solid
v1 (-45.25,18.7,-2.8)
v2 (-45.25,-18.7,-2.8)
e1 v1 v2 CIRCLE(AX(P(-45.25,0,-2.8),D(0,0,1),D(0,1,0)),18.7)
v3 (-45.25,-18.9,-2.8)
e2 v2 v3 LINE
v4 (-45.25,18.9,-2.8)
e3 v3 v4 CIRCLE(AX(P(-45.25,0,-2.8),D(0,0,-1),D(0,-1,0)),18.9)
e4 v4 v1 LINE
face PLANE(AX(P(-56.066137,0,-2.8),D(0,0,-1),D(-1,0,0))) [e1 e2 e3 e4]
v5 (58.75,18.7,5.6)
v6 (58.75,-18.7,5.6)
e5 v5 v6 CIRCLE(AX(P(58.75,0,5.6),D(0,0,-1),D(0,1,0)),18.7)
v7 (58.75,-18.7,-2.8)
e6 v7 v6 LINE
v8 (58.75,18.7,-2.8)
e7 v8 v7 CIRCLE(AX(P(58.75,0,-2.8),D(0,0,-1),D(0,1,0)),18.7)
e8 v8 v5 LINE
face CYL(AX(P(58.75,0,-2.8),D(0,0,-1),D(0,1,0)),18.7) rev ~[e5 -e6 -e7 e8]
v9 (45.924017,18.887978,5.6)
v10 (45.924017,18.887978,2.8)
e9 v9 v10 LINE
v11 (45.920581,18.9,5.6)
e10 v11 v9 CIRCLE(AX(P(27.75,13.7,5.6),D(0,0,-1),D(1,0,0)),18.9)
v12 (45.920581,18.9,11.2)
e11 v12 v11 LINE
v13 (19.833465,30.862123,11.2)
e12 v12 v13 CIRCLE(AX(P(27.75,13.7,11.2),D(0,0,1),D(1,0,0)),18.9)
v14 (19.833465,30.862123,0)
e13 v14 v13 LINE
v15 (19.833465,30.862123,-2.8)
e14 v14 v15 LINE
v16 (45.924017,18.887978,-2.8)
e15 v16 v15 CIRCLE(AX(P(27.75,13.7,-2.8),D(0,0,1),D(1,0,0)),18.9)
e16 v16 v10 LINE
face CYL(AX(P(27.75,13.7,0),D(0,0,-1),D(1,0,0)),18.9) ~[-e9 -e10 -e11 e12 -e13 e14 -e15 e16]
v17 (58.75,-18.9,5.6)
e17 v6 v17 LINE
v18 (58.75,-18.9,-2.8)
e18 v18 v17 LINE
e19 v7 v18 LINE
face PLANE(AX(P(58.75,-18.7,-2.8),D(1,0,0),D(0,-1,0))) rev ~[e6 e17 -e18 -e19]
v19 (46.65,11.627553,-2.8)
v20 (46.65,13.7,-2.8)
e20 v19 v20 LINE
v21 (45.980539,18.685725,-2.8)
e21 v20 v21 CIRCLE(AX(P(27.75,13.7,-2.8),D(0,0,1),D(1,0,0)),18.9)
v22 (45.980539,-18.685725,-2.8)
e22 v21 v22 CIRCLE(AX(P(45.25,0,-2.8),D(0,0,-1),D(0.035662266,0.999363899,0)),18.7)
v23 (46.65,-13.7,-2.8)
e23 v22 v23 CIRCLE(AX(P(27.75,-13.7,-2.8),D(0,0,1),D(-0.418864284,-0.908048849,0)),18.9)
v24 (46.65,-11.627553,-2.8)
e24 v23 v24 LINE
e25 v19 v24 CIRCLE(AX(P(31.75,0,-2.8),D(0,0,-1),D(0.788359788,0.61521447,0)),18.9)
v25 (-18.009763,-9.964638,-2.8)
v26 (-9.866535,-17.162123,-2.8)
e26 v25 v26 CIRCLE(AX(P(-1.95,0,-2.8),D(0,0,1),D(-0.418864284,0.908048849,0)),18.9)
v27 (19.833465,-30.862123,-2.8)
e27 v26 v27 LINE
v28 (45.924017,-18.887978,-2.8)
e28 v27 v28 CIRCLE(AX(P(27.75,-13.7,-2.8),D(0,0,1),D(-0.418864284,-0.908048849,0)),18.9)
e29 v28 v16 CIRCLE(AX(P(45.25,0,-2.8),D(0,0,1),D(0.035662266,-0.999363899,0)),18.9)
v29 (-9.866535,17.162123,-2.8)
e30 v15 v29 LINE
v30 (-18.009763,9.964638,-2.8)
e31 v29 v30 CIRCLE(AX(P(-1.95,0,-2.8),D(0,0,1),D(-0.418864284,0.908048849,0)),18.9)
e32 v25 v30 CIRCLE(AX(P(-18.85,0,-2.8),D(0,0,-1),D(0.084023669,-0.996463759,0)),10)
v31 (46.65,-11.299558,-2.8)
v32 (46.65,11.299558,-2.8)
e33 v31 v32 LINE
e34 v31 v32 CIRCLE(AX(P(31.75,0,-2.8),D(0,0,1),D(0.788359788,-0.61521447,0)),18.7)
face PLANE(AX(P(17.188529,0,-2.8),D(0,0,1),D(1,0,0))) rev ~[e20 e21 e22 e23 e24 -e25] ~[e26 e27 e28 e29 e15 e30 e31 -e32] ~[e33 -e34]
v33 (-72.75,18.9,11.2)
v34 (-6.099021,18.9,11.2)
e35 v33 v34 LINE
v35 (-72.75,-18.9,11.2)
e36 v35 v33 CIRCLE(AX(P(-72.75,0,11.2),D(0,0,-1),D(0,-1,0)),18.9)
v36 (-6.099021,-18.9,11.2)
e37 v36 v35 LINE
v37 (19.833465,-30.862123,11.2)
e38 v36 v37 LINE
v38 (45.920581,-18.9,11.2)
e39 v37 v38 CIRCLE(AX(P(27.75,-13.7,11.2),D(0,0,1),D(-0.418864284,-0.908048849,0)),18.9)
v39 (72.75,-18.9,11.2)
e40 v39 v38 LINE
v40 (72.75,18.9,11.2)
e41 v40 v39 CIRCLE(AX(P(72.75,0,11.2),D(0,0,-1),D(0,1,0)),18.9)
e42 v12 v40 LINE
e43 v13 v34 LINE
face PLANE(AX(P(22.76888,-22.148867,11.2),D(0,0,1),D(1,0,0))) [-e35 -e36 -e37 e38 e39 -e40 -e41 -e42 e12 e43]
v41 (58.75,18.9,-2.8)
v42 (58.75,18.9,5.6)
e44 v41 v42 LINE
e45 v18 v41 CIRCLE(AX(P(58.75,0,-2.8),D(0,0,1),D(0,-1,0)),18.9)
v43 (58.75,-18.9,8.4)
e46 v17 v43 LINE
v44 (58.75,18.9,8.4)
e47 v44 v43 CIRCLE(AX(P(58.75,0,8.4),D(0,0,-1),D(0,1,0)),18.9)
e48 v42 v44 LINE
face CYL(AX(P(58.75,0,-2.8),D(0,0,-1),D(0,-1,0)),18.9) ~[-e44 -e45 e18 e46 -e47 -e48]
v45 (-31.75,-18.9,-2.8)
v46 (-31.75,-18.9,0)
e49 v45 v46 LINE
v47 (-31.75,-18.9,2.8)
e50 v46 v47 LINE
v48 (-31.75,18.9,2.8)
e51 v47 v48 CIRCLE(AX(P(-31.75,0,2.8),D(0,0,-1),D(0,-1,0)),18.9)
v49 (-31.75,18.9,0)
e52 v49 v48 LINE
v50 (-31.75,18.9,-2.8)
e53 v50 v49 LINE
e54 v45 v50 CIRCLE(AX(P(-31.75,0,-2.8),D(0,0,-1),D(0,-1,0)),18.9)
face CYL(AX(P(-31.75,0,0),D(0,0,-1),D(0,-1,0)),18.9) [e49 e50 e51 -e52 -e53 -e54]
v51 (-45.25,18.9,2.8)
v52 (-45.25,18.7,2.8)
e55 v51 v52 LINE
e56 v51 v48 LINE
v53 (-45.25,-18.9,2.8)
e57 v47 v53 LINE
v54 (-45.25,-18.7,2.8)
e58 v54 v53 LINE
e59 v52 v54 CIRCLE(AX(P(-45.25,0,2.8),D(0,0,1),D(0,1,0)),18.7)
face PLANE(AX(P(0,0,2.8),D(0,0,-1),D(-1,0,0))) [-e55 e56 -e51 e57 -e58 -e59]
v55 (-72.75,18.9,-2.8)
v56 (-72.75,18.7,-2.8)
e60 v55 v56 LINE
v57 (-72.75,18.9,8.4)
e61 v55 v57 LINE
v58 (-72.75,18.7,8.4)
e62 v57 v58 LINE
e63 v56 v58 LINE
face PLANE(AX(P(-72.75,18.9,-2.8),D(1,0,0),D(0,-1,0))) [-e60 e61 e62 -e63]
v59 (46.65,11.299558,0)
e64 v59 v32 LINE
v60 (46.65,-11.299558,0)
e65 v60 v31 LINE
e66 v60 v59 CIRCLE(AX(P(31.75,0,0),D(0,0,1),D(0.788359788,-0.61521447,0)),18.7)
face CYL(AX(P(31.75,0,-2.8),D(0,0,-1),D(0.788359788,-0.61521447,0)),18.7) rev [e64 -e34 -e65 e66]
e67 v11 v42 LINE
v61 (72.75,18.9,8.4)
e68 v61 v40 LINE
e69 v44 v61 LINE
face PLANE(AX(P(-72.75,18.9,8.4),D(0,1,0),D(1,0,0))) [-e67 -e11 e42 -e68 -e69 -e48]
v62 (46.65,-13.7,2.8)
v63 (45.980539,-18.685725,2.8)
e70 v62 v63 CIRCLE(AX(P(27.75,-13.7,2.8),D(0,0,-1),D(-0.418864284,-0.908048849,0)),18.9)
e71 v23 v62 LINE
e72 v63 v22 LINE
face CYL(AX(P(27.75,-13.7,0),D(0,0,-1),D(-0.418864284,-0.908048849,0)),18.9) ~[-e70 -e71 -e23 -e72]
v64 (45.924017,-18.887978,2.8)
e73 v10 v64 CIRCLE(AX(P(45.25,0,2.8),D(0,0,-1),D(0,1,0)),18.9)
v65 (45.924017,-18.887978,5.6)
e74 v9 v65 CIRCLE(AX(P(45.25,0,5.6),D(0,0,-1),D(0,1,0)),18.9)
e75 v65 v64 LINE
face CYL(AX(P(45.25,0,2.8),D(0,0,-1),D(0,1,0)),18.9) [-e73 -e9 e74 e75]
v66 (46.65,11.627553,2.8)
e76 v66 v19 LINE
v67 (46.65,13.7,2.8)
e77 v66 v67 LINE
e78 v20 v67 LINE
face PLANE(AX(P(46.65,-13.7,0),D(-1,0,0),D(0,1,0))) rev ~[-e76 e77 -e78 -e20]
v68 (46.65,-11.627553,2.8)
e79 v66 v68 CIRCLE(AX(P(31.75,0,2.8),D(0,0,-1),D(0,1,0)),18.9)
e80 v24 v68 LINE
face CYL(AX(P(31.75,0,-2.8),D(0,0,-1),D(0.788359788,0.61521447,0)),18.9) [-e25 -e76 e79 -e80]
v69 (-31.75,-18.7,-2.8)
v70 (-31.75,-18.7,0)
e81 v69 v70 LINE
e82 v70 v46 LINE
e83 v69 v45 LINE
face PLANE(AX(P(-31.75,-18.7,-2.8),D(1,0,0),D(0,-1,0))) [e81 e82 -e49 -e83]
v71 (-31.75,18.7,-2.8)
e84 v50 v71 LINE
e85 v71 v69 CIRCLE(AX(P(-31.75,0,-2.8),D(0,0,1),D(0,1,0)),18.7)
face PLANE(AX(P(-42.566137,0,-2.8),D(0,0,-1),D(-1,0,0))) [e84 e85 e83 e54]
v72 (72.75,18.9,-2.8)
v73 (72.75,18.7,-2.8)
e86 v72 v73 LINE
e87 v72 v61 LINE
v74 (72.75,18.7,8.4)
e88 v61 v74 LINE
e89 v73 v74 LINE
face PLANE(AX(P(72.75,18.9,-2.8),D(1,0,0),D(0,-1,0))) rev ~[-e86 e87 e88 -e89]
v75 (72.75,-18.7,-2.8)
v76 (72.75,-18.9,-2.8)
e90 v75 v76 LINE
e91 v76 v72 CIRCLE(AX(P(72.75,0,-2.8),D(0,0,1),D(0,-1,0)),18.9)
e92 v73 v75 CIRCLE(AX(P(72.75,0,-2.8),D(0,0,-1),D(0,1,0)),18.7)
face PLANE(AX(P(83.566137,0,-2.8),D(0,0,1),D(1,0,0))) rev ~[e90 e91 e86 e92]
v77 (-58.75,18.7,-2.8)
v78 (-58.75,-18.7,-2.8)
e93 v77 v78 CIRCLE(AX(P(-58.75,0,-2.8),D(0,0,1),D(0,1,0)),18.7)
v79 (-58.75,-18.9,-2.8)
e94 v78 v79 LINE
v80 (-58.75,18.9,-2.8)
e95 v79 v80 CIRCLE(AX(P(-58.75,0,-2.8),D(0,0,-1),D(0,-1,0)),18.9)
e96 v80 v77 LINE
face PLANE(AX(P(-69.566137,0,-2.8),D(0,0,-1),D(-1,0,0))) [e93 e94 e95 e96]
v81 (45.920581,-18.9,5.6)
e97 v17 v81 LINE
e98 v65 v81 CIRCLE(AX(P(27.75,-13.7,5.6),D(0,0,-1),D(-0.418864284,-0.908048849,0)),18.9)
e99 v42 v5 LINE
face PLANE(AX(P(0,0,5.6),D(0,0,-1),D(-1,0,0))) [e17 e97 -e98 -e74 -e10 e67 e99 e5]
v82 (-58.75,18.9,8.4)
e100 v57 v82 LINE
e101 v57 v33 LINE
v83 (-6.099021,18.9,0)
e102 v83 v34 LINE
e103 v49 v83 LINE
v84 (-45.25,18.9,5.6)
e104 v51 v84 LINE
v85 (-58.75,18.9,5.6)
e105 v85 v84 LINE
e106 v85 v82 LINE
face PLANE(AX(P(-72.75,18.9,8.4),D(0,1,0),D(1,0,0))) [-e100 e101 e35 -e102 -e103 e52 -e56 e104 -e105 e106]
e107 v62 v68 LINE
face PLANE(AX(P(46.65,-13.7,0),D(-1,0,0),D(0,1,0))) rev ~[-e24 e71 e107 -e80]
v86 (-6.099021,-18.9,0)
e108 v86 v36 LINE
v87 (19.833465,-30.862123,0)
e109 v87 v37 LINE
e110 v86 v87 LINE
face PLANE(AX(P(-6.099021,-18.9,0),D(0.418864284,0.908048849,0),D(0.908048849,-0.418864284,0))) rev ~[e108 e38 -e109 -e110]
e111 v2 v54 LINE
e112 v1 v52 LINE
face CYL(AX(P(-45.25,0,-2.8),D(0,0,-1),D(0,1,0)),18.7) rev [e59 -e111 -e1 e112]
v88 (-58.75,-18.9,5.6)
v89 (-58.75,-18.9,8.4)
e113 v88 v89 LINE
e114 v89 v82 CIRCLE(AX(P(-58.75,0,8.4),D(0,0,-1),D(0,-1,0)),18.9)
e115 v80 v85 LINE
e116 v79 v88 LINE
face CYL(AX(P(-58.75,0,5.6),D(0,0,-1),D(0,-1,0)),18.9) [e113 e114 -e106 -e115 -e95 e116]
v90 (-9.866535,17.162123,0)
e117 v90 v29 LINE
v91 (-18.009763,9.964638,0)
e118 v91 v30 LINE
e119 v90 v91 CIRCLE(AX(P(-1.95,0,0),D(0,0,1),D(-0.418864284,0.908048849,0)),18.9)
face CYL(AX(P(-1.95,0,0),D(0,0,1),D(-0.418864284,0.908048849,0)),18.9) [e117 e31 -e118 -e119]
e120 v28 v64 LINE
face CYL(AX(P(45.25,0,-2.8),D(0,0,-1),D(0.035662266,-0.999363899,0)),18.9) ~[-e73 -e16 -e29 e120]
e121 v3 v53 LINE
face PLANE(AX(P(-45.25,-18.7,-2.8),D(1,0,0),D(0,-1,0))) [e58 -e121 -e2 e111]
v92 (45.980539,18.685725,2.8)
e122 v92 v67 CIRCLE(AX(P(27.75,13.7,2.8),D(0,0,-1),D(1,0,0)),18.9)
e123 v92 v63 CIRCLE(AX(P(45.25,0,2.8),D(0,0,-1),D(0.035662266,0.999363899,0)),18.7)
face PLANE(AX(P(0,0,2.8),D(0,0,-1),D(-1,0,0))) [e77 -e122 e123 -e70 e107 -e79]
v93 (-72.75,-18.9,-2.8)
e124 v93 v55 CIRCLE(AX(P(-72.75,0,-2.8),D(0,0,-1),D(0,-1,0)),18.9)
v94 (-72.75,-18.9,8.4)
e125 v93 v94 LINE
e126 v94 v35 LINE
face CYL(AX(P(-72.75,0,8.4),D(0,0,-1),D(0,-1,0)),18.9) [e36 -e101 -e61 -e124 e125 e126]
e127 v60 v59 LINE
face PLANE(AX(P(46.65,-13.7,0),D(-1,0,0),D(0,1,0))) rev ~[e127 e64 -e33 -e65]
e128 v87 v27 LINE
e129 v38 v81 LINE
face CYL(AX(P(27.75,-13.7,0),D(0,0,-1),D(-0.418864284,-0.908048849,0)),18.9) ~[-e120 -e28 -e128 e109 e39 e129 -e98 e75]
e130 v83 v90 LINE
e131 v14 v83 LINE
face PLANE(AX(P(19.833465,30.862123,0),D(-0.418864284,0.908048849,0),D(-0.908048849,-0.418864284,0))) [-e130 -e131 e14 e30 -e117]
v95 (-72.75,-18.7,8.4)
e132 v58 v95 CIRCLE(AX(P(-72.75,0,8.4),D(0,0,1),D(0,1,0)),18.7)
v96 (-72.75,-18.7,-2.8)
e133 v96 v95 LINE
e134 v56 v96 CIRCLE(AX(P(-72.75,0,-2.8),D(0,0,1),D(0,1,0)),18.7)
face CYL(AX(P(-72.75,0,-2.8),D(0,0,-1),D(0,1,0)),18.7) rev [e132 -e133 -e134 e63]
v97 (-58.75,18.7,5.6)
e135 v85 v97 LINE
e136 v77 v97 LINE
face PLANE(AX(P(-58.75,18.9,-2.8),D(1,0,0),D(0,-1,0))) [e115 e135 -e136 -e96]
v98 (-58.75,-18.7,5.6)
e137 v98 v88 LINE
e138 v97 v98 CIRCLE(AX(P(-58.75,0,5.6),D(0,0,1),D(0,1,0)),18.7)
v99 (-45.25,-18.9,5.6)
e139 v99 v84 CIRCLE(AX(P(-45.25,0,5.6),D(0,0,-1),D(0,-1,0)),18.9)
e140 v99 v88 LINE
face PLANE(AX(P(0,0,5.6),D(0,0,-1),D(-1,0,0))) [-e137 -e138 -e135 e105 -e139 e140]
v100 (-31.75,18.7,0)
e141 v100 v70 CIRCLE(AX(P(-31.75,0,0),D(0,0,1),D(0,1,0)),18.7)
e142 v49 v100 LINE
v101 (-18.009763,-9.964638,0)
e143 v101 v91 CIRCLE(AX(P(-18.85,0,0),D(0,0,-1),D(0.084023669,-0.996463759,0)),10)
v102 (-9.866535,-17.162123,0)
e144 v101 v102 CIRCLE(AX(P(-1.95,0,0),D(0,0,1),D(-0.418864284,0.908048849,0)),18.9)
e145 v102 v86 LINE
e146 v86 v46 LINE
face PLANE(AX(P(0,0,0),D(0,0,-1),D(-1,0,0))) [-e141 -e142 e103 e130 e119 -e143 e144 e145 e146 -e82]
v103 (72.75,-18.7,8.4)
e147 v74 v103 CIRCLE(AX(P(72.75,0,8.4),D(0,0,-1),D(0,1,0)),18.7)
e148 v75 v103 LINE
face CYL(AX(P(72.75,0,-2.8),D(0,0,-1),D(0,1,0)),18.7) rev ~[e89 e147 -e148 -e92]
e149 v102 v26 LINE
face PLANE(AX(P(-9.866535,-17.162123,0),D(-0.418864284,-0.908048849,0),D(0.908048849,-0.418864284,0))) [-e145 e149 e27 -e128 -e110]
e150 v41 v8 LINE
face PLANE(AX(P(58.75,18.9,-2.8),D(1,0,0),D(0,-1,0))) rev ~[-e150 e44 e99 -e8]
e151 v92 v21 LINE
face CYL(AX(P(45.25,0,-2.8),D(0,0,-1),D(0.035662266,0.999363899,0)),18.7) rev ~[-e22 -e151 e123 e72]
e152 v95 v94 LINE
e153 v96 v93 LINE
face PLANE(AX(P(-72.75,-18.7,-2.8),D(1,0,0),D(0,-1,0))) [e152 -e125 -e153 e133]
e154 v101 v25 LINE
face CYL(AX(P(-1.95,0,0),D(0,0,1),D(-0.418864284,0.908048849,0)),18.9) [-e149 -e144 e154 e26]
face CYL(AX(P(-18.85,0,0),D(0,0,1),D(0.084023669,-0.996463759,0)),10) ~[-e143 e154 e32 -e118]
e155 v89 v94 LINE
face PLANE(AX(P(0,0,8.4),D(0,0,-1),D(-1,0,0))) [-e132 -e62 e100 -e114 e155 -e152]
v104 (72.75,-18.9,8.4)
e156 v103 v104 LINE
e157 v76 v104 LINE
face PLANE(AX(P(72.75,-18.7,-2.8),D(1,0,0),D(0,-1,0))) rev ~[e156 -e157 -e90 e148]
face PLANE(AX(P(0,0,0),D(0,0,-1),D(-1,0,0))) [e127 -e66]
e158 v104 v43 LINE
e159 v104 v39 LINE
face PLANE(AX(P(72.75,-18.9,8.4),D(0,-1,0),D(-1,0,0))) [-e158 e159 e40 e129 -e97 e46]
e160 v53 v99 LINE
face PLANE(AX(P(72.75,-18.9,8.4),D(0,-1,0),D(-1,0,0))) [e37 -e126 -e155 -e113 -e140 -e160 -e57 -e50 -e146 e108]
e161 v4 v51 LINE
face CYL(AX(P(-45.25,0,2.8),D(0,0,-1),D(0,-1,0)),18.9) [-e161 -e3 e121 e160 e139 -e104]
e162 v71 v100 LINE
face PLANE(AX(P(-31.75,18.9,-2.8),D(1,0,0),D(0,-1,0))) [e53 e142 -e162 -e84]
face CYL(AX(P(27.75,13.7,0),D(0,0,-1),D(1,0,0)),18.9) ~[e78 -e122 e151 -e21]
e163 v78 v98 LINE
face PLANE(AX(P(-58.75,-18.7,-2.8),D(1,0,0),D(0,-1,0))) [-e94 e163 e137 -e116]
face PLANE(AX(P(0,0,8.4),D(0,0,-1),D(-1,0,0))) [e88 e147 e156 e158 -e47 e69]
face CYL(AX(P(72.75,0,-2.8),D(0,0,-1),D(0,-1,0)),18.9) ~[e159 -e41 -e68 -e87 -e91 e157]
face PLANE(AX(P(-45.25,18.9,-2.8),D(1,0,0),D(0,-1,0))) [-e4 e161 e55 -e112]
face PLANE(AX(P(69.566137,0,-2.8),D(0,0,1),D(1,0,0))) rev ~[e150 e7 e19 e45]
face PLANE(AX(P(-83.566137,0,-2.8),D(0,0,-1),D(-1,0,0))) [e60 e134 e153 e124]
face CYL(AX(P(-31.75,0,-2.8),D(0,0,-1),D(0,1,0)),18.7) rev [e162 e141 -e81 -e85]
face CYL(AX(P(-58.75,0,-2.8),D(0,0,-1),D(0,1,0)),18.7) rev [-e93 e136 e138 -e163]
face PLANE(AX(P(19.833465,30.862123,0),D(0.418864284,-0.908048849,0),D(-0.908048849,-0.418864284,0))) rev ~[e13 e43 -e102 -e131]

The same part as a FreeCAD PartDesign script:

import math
import FreeCAD as App
import Part
import Sketcher
Q = App.Units.Quantity

doc = App.newDocument("Part")
params = doc.addObject("Spreadsheet::Sheet", "Params")
for row, (alias, value) in enumerate([
    ("sketch1_radius", "18.9 mm"),
    ("sketch1_width", "63.5 mm"),
    ("pad1_length", "2.8 mm"),
    ("sketch2_radius", "18.9 mm"),
    ("sketch2_height", "27.4 mm"),
    ("pad2_length", "2.8 mm"),
    ("sketch3_radius", "18.9 mm"),
    ("sketch3_width", "90.5 mm"),
    ("pad3_length", "2.8 mm"),
    ("sketch4_radius", "18.9 mm"),
    ("sketch4_width", "117.5 mm"),
    ("pad4_length", "2.8 mm"),
    ("sketch5_radius", "18.9 mm"),
    ("sketch5_width", "145.5 mm"),
    ("pad5_length", "2.8 mm"),
    ("sketch6_radius", "18.9 mm"),
    ("pad6_length", "11.2 mm"),
    ("sketch7_radius", "10 mm"),
    ("sketch7_radius2", "18.9 mm"),
    ("pad7_length", "2.8 mm"),
    ("sketch8_radius", "18.7 mm"),
    ("sketch8_radius2", "18.9 mm"),
    ("pad8_length", "11.2 mm"),
    ("sketch9_radius", "18.9 mm"),
    ("sketch9_radius2", "18.7 mm"),
    ("pad9_length", "8.4 mm"),
    ("sketch10_radius", "18.9 mm"),
    ("sketch10_radius2", "18.7 mm"),
    ("pad10_length", "5.6 mm"),
    ("sketch11_radius", "18.7 mm"),
    ("sketch11_radius2", "18.9 mm"),
    ("pad11_length", "2.8 mm"),
], start=1):
    params.set(f"A{row}", alias)
    params.set(f"B{row}", "=" + value)
    params.setAlias(f"B{row}", alias)

body = doc.addObject("PartDesign::Body", "Body")

sketch1 = body.newObject("Sketcher::SketchObject", "Sketch")
sketch1.AttachmentSupport = (doc.getObject("XY_Plane"), [""])
sketch1.MapMode = "FlatFace"
sketch1.addGeometry(Part.LineSegment(App.Vector(31.75, 18.9, 0), App.Vector(-31.75, 18.9, 0)), False)
sketch1.addGeometry(Part.ArcOfCircle(Part.Circle(App.Vector(-31.75, 0, 0), App.Vector(0, 0, 1), 18.9), math.radians(90), math.radians(270)), False)
sketch1.addGeometry(Part.LineSegment(App.Vector(-31.75, -18.9, 0), App.Vector(31.75, -18.9, 0)), False)
sketch1.addGeometry(Part.ArcOfCircle(Part.Circle(App.Vector(31.75, 0, 0), App.Vector(0, 0, 1), 18.9), math.radians(-90), math.radians(90)), False)
sketch1.addConstraint(Sketcher.Constraint("Tangent", 0, 2, 1, 1))
sketch1.addConstraint(Sketcher.Constraint("Tangent", 1, 2, 2, 1))
sketch1.addConstraint(Sketcher.Constraint("Tangent", 2, 2, 3, 1))
sketch1.addConstraint(Sketcher.Constraint("Tangent", 3, 2, 0, 1))
sketch1.addConstraint(Sketcher.Constraint("Horizontal", 0))
sketch1.addConstraint(Sketcher.Constraint("Horizontal", 2))
sketch1.addConstraint(Sketcher.Constraint("Symmetric", 1, 3, 3, 3, -1, 1))
sketch1.addConstraint(Sketcher.Constraint("Radius", 1, Q("18.9 mm")))
sketch1.addConstraint(Sketcher.Constraint("DistanceX", 0, 2, 0, 1, Q("63.5 mm")))
sketch1.setExpression("Constraints[7]", "Params.sketch1_radius")
sketch1.setExpression("Constraints[8]", "Params.sketch1_width")
pad1 = body.newObject("PartDesign::Pad", "Pad")
pad1.Profile = sketch1
pad1.setExpression("Length", "Params.pad1_length")

sketch2 = body.newObject("Sketcher::SketchObject", "Sketch001")
sketch2.AttachmentSupport = (doc.getObject("XY_Plane"), [""])
sketch2.MapMode = "FlatFace"
sketch2.addGeometry(Part.LineSegment(App.Vector(46.65, 13.7, 0), App.Vector(46.65, -13.7, 0)), False)
sketch2.addGeometry(Part.ArcOfCircle(Part.Circle(App.Vector(27.75, -13.7, 0), App.Vector(0, 0, 1), 18.9), math.radians(-114.762906), math.radians(0)), False)
sketch2.addGeometry(Part.LineSegment(App.Vector(19.833465, -30.862123, 0), App.Vector(-9.866535, -17.162123, 0)), False)
sketch2.addGeometry(Part.ArcOfCircle(Part.Circle(App.Vector(-1.95, 0, 0), App.Vector(0, 0, 1), 18.9), math.radians(114.762906), math.radians(245.237094)), False)
sketch2.addGeometry(Part.LineSegment(App.Vector(-9.866535, 17.162123, 0), App.Vector(19.833465, 30.862123, 0)), False)
sketch2.addGeometry(Part.ArcOfCircle(Part.Circle(App.Vector(27.75, 13.7, 0), App.Vector(0, 0, 1), 18.9), math.radians(0), math.radians(114.762906)), False)
sketch2.addConstraint(Sketcher.Constraint("Tangent", 0, 2, 1, 2))
sketch2.addConstraint(Sketcher.Constraint("Tangent", 1, 1, 2, 1))
sketch2.addConstraint(Sketcher.Constraint("Tangent", 2, 2, 3, 2))
sketch2.addConstraint(Sketcher.Constraint("Tangent", 3, 1, 4, 1))
sketch2.addConstraint(Sketcher.Constraint("Tangent", 4, 2, 5, 2))
sketch2.addConstraint(Sketcher.Constraint("Tangent", 5, 1, 0, 1))
sketch2.addConstraint(Sketcher.Constraint("Vertical", 0))
sketch2.addConstraint(Sketcher.Constraint("Equal", 1, 3))
sketch2.addConstraint(Sketcher.Constraint("Equal", 3, 5))
sketch2.addConstraint(Sketcher.Constraint("Symmetric", 2, 2, 3, 1, -1))
sketch2.addConstraint(Sketcher.Constraint("Radius", 1, Q("18.9 mm")))
sketch2.addConstraint(Sketcher.Constraint("DistanceY", 0, 2, 0, 1, Q("27.4 mm")))
sketch2.addConstraint(Sketcher.Constraint("DistanceX", 3, 3, 1, 3, Q("29.7 mm")))
sketch2.addConstraint(Sketcher.Constraint("DistanceX", -1, 1, 1, 3, Q("27.75 mm")))
sketch2.setExpression("Constraints[10]", "Params.sketch2_radius")
sketch2.setExpression("Constraints[11]", "Params.sketch2_height")
pad2 = body.newObject("PartDesign::Pad", "Pad001")
pad2.Profile = sketch2
pad2.setExpression("Length", "Params.pad2_length")
pad2.Reversed = True

sketch3 = body.newObject("Sketcher::SketchObject", "Sketch002")
sketch3.AttachmentSupport = (doc.getObject("XY_Plane"), [""])
sketch3.MapMode = "FlatFace"
sketch3.AttachmentOffset = App.Placement(App.Vector(0, 0, 2.8), App.Rotation())
sketch3.addGeometry(Part.LineSegment(App.Vector(45.25, 18.9, 0), App.Vector(-45.25, 18.9, 0)), False)
sketch3.addGeometry(Part.ArcOfCircle(Part.Circle(App.Vector(-45.25, 0, 0), App.Vector(0, 0, 1), 18.9), math.radians(90), math.radians(270)), False)
sketch3.addGeometry(Part.LineSegment(App.Vector(-45.25, -18.9, 0), App.Vector(45.25, -18.9, 0)), False)
sketch3.addGeometry(Part.ArcOfCircle(Part.Circle(App.Vector(45.25, 0, 0), App.Vector(0, 0, 1), 18.9), math.radians(-90), math.radians(90)), False)
sketch3.addConstraint(Sketcher.Constraint("Tangent", 0, 2, 1, 1))
sketch3.addConstraint(Sketcher.Constraint("Tangent", 1, 2, 2, 1))
sketch3.addConstraint(Sketcher.Constraint("Tangent", 2, 2, 3, 1))
sketch3.addConstraint(Sketcher.Constraint("Tangent", 3, 2, 0, 1))
sketch3.addConstraint(Sketcher.Constraint("Horizontal", 0))
sketch3.addConstraint(Sketcher.Constraint("Horizontal", 2))
sketch3.addConstraint(Sketcher.Constraint("Symmetric", 1, 3, 3, 3, -1, 1))
sketch3.addConstraint(Sketcher.Constraint("Radius", 1, Q("18.9 mm")))
sketch3.addConstraint(Sketcher.Constraint("DistanceX", 0, 2, 0, 1, Q("90.5 mm")))
sketch3.setExpression("Constraints[7]", "Params.sketch3_radius")
sketch3.setExpression("Constraints[8]", "Params.sketch3_width")
pad3 = body.newObject("PartDesign::Pad", "Pad002")
pad3.Profile = sketch3
pad3.setExpression("Length", "Params.pad3_length")

sketch4 = body.newObject("Sketcher::SketchObject", "Sketch003")
sketch4.AttachmentSupport = (doc.getObject("XY_Plane"), [""])
sketch4.MapMode = "FlatFace"
sketch4.AttachmentOffset = App.Placement(App.Vector(0, 0, 5.6), App.Rotation())
sketch4.addGeometry(Part.LineSegment(App.Vector(58.75, 18.9, 0), App.Vector(-58.75, 18.9, 0)), False)
sketch4.addGeometry(Part.ArcOfCircle(Part.Circle(App.Vector(-58.75, 0, 0), App.Vector(0, 0, 1), 18.9), math.radians(90), math.radians(270)), False)
sketch4.addGeometry(Part.LineSegment(App.Vector(-58.75, -18.9, 0), App.Vector(58.75, -18.9, 0)), False)
sketch4.addGeometry(Part.ArcOfCircle(Part.Circle(App.Vector(58.75, 0, 0), App.Vector(0, 0, 1), 18.9), math.radians(-90), math.radians(90)), False)
sketch4.addConstraint(Sketcher.Constraint("Tangent", 0, 2, 1, 1))
sketch4.addConstraint(Sketcher.Constraint("Tangent", 1, 2, 2, 1))
sketch4.addConstraint(Sketcher.Constraint("Tangent", 2, 2, 3, 1))
sketch4.addConstraint(Sketcher.Constraint("Tangent", 3, 2, 0, 1))
sketch4.addConstraint(Sketcher.Constraint("Horizontal", 0))
sketch4.addConstraint(Sketcher.Constraint("Horizontal", 2))
sketch4.addConstraint(Sketcher.Constraint("Symmetric", 1, 3, 3, 3, -1, 1))
sketch4.addConstraint(Sketcher.Constraint("Radius", 1, Q("18.9 mm")))
sketch4.addConstraint(Sketcher.Constraint("DistanceX", 0, 2, 0, 1, Q("117.5 mm")))
sketch4.setExpression("Constraints[7]", "Params.sketch4_radius")
sketch4.setExpression("Constraints[8]", "Params.sketch4_width")
pad4 = body.newObject("PartDesign::Pad", "Pad003")
pad4.Profile = sketch4
pad4.setExpression("Length", "Params.pad4_length")

sketch5 = body.newObject("Sketcher::SketchObject", "Sketch004")
sketch5.AttachmentSupport = (doc.getObject("XY_Plane"), [""])
sketch5.MapMode = "FlatFace"
sketch5.AttachmentOffset = App.Placement(App.Vector(0, 0, 8.4), App.Rotation())
sketch5.addGeometry(Part.LineSegment(App.Vector(72.75, 18.9, 0), App.Vector(-72.75, 18.9, 0)), False)
sketch5.addGeometry(Part.ArcOfCircle(Part.Circle(App.Vector(-72.75, 0, 0), App.Vector(0, 0, 1), 18.9), math.radians(90), math.radians(270)), False)
sketch5.addGeometry(Part.LineSegment(App.Vector(-72.75, -18.9, 0), App.Vector(72.75, -18.9, 0)), False)
sketch5.addGeometry(Part.ArcOfCircle(Part.Circle(App.Vector(72.75, 0, 0), App.Vector(0, 0, 1), 18.9), math.radians(-90), math.radians(90)), False)
sketch5.addConstraint(Sketcher.Constraint("Tangent", 0, 2, 1, 1))
sketch5.addConstraint(Sketcher.Constraint("Tangent", 1, 2, 2, 1))
sketch5.addConstraint(Sketcher.Constraint("Tangent", 2, 2, 3, 1))
sketch5.addConstraint(Sketcher.Constraint("Tangent", 3, 2, 0, 1))
sketch5.addConstraint(Sketcher.Constraint("Horizontal", 0))
sketch5.addConstraint(Sketcher.Constraint("Horizontal", 2))
sketch5.addConstraint(Sketcher.Constraint("Symmetric", 1, 3, 3, 3, -1, 1))
sketch5.addConstraint(Sketcher.Constraint("Radius", 1, Q("18.9 mm")))
sketch5.addConstraint(Sketcher.Constraint("DistanceX", 0, 2, 0, 1, Q("145.5 mm")))
sketch5.setExpression("Constraints[7]", "Params.sketch5_radius")
sketch5.setExpression("Constraints[8]", "Params.sketch5_width")
pad5 = body.newObject("PartDesign::Pad", "Pad004")
pad5.Profile = sketch5
pad5.setExpression("Length", "Params.pad5_length")

sketch6 = body.newObject("Sketcher::SketchObject", "Sketch005")
sketch6.AttachmentSupport = (doc.getObject("XY_Plane"), [""])
sketch6.MapMode = "FlatFace"
sketch6.addGeometry(Part.LineSegment(App.Vector(31.75, -18.9, 0), App.Vector(-6.099021, -18.9, 0)), False)
sketch6.addGeometry(Part.LineSegment(App.Vector(-6.099021, -18.9, 0), App.Vector(19.833465, -30.862123, 0)), False)
sketch6.addGeometry(Part.ArcOfCircle(Part.Circle(App.Vector(27.75, -13.7, 0), App.Vector(0, 0, 1), 18.9), math.radians(-114.762906), math.radians(0)), False)
sketch6.addGeometry(Part.LineSegment(App.Vector(46.65, -13.7, 0), App.Vector(46.65, -11.627553, 0)), False)
sketch6.addGeometry(Part.ArcOfCircle(Part.Circle(App.Vector(31.75, 0, 0), App.Vector(0, 0, 1), 18.9), math.radians(-90), math.radians(-37.967506)), False)
sketch6.addGeometry(Part.LineSegment(App.Vector(46.65, 11.627553, 0), App.Vector(46.65, 13.7, 0)), False)
sketch6.addGeometry(Part.ArcOfCircle(Part.Circle(App.Vector(27.75, 13.7, 0), App.Vector(0, 0, 1), 18.9), math.radians(0), math.radians(114.762906)), False)
sketch6.addGeometry(Part.LineSegment(App.Vector(19.833465, 30.862123, 0), App.Vector(-6.099021, 18.9, 0)), False)
sketch6.addGeometry(Part.LineSegment(App.Vector(-6.099021, 18.9, 0), App.Vector(31.75, 18.9, 0)), False)
sketch6.addGeometry(Part.ArcOfCircle(Part.Circle(App.Vector(31.75, 0, 0), App.Vector(0, 0, 1), 18.9), math.radians(37.967506), math.radians(90)), False)
sketch6.addConstraint(Sketcher.Constraint("Coincident", 0, 2, 1, 1))
sketch6.addConstraint(Sketcher.Constraint("Tangent", 1, 2, 2, 1))
sketch6.addConstraint(Sketcher.Constraint("Tangent", 2, 2, 3, 1))
sketch6.addConstraint(Sketcher.Constraint("Coincident", 3, 2, 4, 2))
sketch6.addConstraint(Sketcher.Constraint("Tangent", 4, 1, 0, 1))
sketch6.addConstraint(Sketcher.Constraint("Tangent", 5, 2, 6, 1))
sketch6.addConstraint(Sketcher.Constraint("Tangent", 6, 2, 7, 1))
sketch6.addConstraint(Sketcher.Constraint("Coincident", 7, 2, 8, 1))
sketch6.addConstraint(Sketcher.Constraint("Tangent", 8, 2, 9, 2))
sketch6.addConstraint(Sketcher.Constraint("Coincident", 9, 1, 5, 1))
sketch6.addConstraint(Sketcher.Constraint("Horizontal", 0))
sketch6.addConstraint(Sketcher.Constraint("Vertical", 3))
sketch6.addConstraint(Sketcher.Constraint("Vertical", 5))
sketch6.addConstraint(Sketcher.Constraint("Horizontal", 8))
sketch6.addConstraint(Sketcher.Constraint("Coincident", 9, 3, 4, 3))
sketch6.addConstraint(Sketcher.Constraint("Equal", 2, 4))
sketch6.addConstraint(Sketcher.Constraint("Equal", 4, 6))
sketch6.addConstraint(Sketcher.Constraint("Equal", 6, 9))
sketch6.addConstraint(Sketcher.Constraint("Symmetric", 2, 3, 6, 3, -1))
sketch6.addConstraint(Sketcher.Constraint("Symmetric", 0, 2, 7, 2, -1))
sketch6.addConstraint(Sketcher.Constraint("Radius", 2, Q("18.9 mm")))
sketch6.addConstraint(Sketcher.Constraint("DistanceX", 2, 3, 4, 3, Q("4 mm")))
sketch6.addConstraint(Sketcher.Constraint("DistanceY", 2, 3, -1, 1, Q("13.7 mm")))
sketch6.addConstraint(Sketcher.Constraint("DistanceX", -1, 1, 2, 3, Q("27.75 mm")))
sketch6.addConstraint(Sketcher.Constraint("DistanceX", 0, 2, 0, 1, Q("37.849021 mm")))
sketch6.setExpression("Constraints[20]", "Params.sketch6_radius")
pad6 = body.newObject("PartDesign::Pad", "Pad005")
pad6.Profile = sketch6
pad6.setExpression("Length", "Params.pad6_length")

sketch7 = body.newObject("Sketcher::SketchObject", "Sketch006")
sketch7.AttachmentSupport = (doc.getObject("XY_Plane"), [""])
sketch7.MapMode = "FlatFace"
sketch7.addGeometry(Part.ArcOfCircle(Part.Circle(App.Vector(-18.85, 0, 0), App.Vector(0, 0, 1), 10), math.radians(85.180116), math.radians(274.819884)), False)
sketch7.addGeometry(Part.ArcOfCircle(Part.Circle(App.Vector(-1.95, 0, 0), App.Vector(0, 0, 1), 18.9), math.radians(148.181546), math.radians(211.818454)), False)
sketch7.addConstraint(Sketcher.Constraint("Coincident", 0, 1, 1, 1))
sketch7.addConstraint(Sketcher.Constraint("Coincident", 1, 2, 0, 2))
sketch7.addConstraint(Sketcher.Constraint("Symmetric", 0, 1, 1, 2, -1))
sketch7.addConstraint(Sketcher.Constraint("Radius", 0, Q("10 mm")))
sketch7.addConstraint(Sketcher.Constraint("Radius", 1, Q("18.9 mm")))
sketch7.addConstraint(Sketcher.Constraint("DistanceX", 0, 3, 1, 3, Q("16.9 mm")))
sketch7.addConstraint(Sketcher.Constraint("DistanceX", 0, 3, -1, 1, Q("18.85 mm")))
sketch7.setExpression("Constraints[3]", "Params.sketch7_radius")
sketch7.setExpression("Constraints[4]", "Params.sketch7_radius2")
pad7 = body.newObject("PartDesign::Pad", "Pad006")
pad7.Profile = sketch7
pad7.setExpression("Length", "Params.pad7_length")
pad7.Reversed = True

sketch8 = body.newObject("Sketcher::SketchObject", "Sketch007")
sketch8.AttachmentSupport = (doc.getObject("XY_Plane"), [""])
sketch8.MapMode = "FlatFace"
sketch8.AttachmentOffset = App.Placement(App.Vector(0, 0, -2.8), App.Rotation())
sketch8.addGeometry(Part.LineSegment(App.Vector(72.75, -18.9, 0), App.Vector(72.75, -18.7, 0)), False)
sketch8.addGeometry(Part.ArcOfCircle(Part.Circle(App.Vector(72.75, 0, 0), App.Vector(0, 0, 1), 18.7), math.radians(-90), math.radians(90)), False)
sketch8.addGeometry(Part.LineSegment(App.Vector(72.75, 18.7, 0), App.Vector(72.75, 18.9, 0)), False)
sketch8.addGeometry(Part.ArcOfCircle(Part.Circle(App.Vector(72.75, 0, 0), App.Vector(0, 0, 1), 18.9), math.radians(-90), math.radians(90)), False)
sketch8.addGeometry(Part.LineSegment(App.Vector(-72.75, -18.7, 0), App.Vector(-72.75, -18.9, 0)), False)
sketch8.addGeometry(Part.ArcOfCircle(Part.Circle(App.Vector(-72.75, 0, 0), App.Vector(0, 0, 1), 18.9), math.radians(90), math.radians(270)), False)
sketch8.addGeometry(Part.LineSegment(App.Vector(-72.75, 18.9, 0), App.Vector(-72.75, 18.7, 0)), False)
sketch8.addGeometry(Part.ArcOfCircle(Part.Circle(App.Vector(-72.75, 0, 0), App.Vector(0, 0, 1), 18.7), math.radians(90), math.radians(270)), False)
sketch8.addConstraint(Sketcher.Constraint("Coincident", 0, 2, 1, 1))
sketch8.addConstraint(Sketcher.Constraint("Coincident", 1, 2, 2, 1))
sketch8.addConstraint(Sketcher.Constraint("Coincident", 2, 2, 3, 2))
sketch8.addConstraint(Sketcher.Constraint("Coincident", 3, 1, 0, 1))
sketch8.addConstraint(Sketcher.Constraint("Coincident", 4, 2, 5, 2))
sketch8.addConstraint(Sketcher.Constraint("Coincident", 5, 1, 6, 1))
sketch8.addConstraint(Sketcher.Constraint("Coincident", 6, 2, 7, 1))
sketch8.addConstraint(Sketcher.Constraint("Coincident", 7, 2, 4, 1))
sketch8.addConstraint(Sketcher.Constraint("Vertical", 0))
sketch8.addConstraint(Sketcher.Constraint("Vertical", 2))
sketch8.addConstraint(Sketcher.Constraint("Vertical", 4))
sketch8.addConstraint(Sketcher.Constraint("Vertical", 6))
sketch8.addConstraint(Sketcher.Constraint("Coincident", 3, 3, 1, 3))
sketch8.addConstraint(Sketcher.Constraint("Coincident", 7, 3, 5, 3))
sketch8.addConstraint(Sketcher.Constraint("Equal", 3, 5))
sketch8.addConstraint(Sketcher.Constraint("Equal", 1, 7))
sketch8.addConstraint(Sketcher.Constraint("Symmetric", 1, 3, 5, 3, -1, 1))
sketch8.addConstraint(Sketcher.Constraint("Symmetric", 3, 1, 4, 2, -2))
sketch8.addConstraint(Sketcher.Constraint("Vertical", 3, 3, 0, 2))
sketch8.addConstraint(Sketcher.Constraint("Vertical", 0, 2, 1, 2))
sketch8.addConstraint(Sketcher.Constraint("Vertical", 4, 2, 5, 1))
sketch8.addConstraint(Sketcher.Constraint("Radius", 1, Q("18.7 mm")))
sketch8.addConstraint(Sketcher.Constraint("Radius", 3, Q("18.9 mm")))
sketch8.addConstraint(Sketcher.Constraint("DistanceX", 5, 3, 1, 3, Q("145.5 mm")))
sketch8.setExpression("Constraints[21]", "Params.sketch8_radius")
sketch8.setExpression("Constraints[22]", "Params.sketch8_radius2")
pad8 = body.newObject("PartDesign::Pad", "Pad007")
pad8.Profile = sketch8
pad8.setExpression("Length", "Params.pad8_length")

sketch9 = body.newObject("Sketcher::SketchObject", "Sketch008")
sketch9.AttachmentSupport = (doc.getObject("XY_Plane"), [""])
sketch9.MapMode = "FlatFace"
sketch9.AttachmentOffset = App.Placement(App.Vector(0, 0, -2.8), App.Rotation())
sketch9.addGeometry(Part.LineSegment(App.Vector(58.75, 18.7, 0), App.Vector(58.75, 18.9, 0)), False)
sketch9.addGeometry(Part.ArcOfCircle(Part.Circle(App.Vector(58.75, 0, 0), App.Vector(0, 0, 1), 18.9), math.radians(-90), math.radians(90)), False)
sketch9.addGeometry(Part.LineSegment(App.Vector(58.75, -18.9, 0), App.Vector(58.75, -18.7, 0)), False)
sketch9.addGeometry(Part.ArcOfCircle(Part.Circle(App.Vector(58.75, 0, 0), App.Vector(0, 0, 1), 18.7), math.radians(-90), math.radians(90)), False)
sketch9.addGeometry(Part.LineSegment(App.Vector(-58.75, 18.9, 0), App.Vector(-58.75, 18.7, 0)), False)
sketch9.addGeometry(Part.ArcOfCircle(Part.Circle(App.Vector(-58.75, 0, 0), App.Vector(0, 0, 1), 18.7), math.radians(90), math.radians(270)), False)
sketch9.addGeometry(Part.LineSegment(App.Vector(-58.75, -18.7, 0), App.Vector(-58.75, -18.9, 0)), False)
sketch9.addGeometry(Part.ArcOfCircle(Part.Circle(App.Vector(-58.75, 0, 0), App.Vector(0, 0, 1), 18.9), math.radians(90), math.radians(270)), False)
sketch9.addConstraint(Sketcher.Constraint("Coincident", 0, 2, 1, 2))
sketch9.addConstraint(Sketcher.Constraint("Coincident", 1, 1, 2, 1))
sketch9.addConstraint(Sketcher.Constraint("Coincident", 2, 2, 3, 1))
sketch9.addConstraint(Sketcher.Constraint("Coincident", 3, 2, 0, 1))
sketch9.addConstraint(Sketcher.Constraint("Coincident", 4, 2, 5, 1))
sketch9.addConstraint(Sketcher.Constraint("Coincident", 5, 2, 6, 1))
sketch9.addConstraint(Sketcher.Constraint("Coincident", 6, 2, 7, 2))
sketch9.addConstraint(Sketcher.Constraint("Coincident", 7, 1, 4, 1))
sketch9.addConstraint(Sketcher.Constraint("Vertical", 0))
sketch9.addConstraint(Sketcher.Constraint("Vertical", 2))
sketch9.addConstraint(Sketcher.Constraint("Vertical", 4))
sketch9.addConstraint(Sketcher.Constraint("Vertical", 6))
sketch9.addConstraint(Sketcher.Constraint("Coincident", 3, 3, 1, 3))
sketch9.addConstraint(Sketcher.Constraint("Coincident", 7, 3, 5, 3))
sketch9.addConstraint(Sketcher.Constraint("Equal", 3, 5))
sketch9.addConstraint(Sketcher.Constraint("Equal", 1, 7))
sketch9.addConstraint(Sketcher.Constraint("Symmetric", 1, 3, 5, 3, -1, 1))
sketch9.addConstraint(Sketcher.Constraint("Symmetric", 3, 2, 4, 2, -2))
sketch9.addConstraint(Sketcher.Constraint("Vertical", 3, 3, 0, 2))
sketch9.addConstraint(Sketcher.Constraint("Vertical", 0, 2, 1, 1))
sketch9.addConstraint(Sketcher.Constraint("Vertical", 4, 2, 5, 2))
sketch9.addConstraint(Sketcher.Constraint("Radius", 1, Q("18.9 mm")))
sketch9.addConstraint(Sketcher.Constraint("Radius", 3, Q("18.7 mm")))
sketch9.addConstraint(Sketcher.Constraint("DistanceX", 5, 3, 1, 3, Q("117.5 mm")))
sketch9.setExpression("Constraints[21]", "Params.sketch9_radius")
sketch9.setExpression("Constraints[22]", "Params.sketch9_radius2")
pad9 = body.newObject("PartDesign::Pad", "Pad008")
pad9.Profile = sketch9
pad9.setExpression("Length", "Params.pad9_length")

sketch10 = body.newObject("Sketcher::SketchObject", "Sketch009")
sketch10.AttachmentSupport = (doc.getObject("XY_Plane"), [""])
sketch10.MapMode = "FlatFace"
sketch10.AttachmentOffset = App.Placement(App.Vector(0, 0, -2.8), App.Rotation())
sketch10.addGeometry(Part.LineSegment(App.Vector(45.916884, 18.688105, 0), App.Vector(45.924017, 18.887978, 0)), False)
sketch10.addGeometry(Part.ArcOfCircle(Part.Circle(App.Vector(45.25, 0, 0), App.Vector(0, 0, 1), 18.9), math.radians(-87.956269), math.radians(87.956269)), False)
sketch10.addGeometry(Part.LineSegment(App.Vector(45.924017, -18.887978, 0), App.Vector(45.916884, -18.688105, 0)), False)
sketch10.addGeometry(Part.ArcOfCircle(Part.Circle(App.Vector(45.25, 0, 0), App.Vector(0, 0, 1), 18.7), math.radians(-87.956269), math.radians(87.956269)), False)
sketch10.addGeometry(Part.LineSegment(App.Vector(-45.25, 18.9, 0), App.Vector(-45.25, 18.7, 0)), False)
sketch10.addGeometry(Part.ArcOfCircle(Part.Circle(App.Vector(-45.25, 0, 0), App.Vector(0, 0, 1), 18.7), math.radians(90), math.radians(270)), False)
sketch10.addGeometry(Part.LineSegment(App.Vector(-45.25, -18.7, 0), App.Vector(-45.25, -18.9, 0)), False)
sketch10.addGeometry(Part.ArcOfCircle(Part.Circle(App.Vector(-45.25, 0, 0), App.Vector(0, 0, 1), 18.9), math.radians(90), math.radians(270)), False)
sketch10.addConstraint(Sketcher.Constraint("Coincident", 0, 2, 1, 2))
sketch10.addConstraint(Sketcher.Constraint("Coincident", 1, 1, 2, 1))
sketch10.addConstraint(Sketcher.Constraint("Coincident", 2, 2, 3, 1))
sketch10.addConstraint(Sketcher.Constraint("Coincident", 3, 2, 0, 1))
sketch10.addConstraint(Sketcher.Constraint("Coincident", 4, 2, 5, 1))
sketch10.addConstraint(Sketcher.Constraint("Coincident", 5, 2, 6, 1))
sketch10.addConstraint(Sketcher.Constraint("Coincident", 6, 2, 7, 2))
sketch10.addConstraint(Sketcher.Constraint("Coincident", 7, 1, 4, 1))
sketch10.addConstraint(Sketcher.Constraint("Vertical", 4))
sketch10.addConstraint(Sketcher.Constraint("Vertical", 6))
sketch10.addConstraint(Sketcher.Constraint("Coincident", 3, 3, 1, 3))
sketch10.addConstraint(Sketcher.Constraint("Coincident", 7, 3, 5, 3))
sketch10.addConstraint(Sketcher.Constraint("Equal", 3, 5))
sketch10.addConstraint(Sketcher.Constraint("Equal", 1, 7))
sketch10.addConstraint(Sketcher.Constraint("Symmetric", 1, 3, 5, 3, -1, 1))
sketch10.addConstraint(Sketcher.Constraint("Symmetric", 0, 2, 1, 1, -1))
sketch10.addConstraint(Sketcher.Constraint("Vertical", 2, 2, 3, 2))
sketch10.addConstraint(Sketcher.Constraint("Vertical", 7, 3, 4, 2))
sketch10.addConstraint(Sketcher.Constraint("Vertical", 4, 2, 5, 2))
sketch10.addConstraint(Sketcher.Constraint("Radius", 1, Q("18.9 mm")))
sketch10.addConstraint(Sketcher.Constraint("Radius", 3, Q("18.7 mm")))
sketch10.addConstraint(Sketcher.Constraint("DistanceX", 5, 3, 1, 3, Q("90.5 mm")))
sketch10.addConstraint(Sketcher.Constraint("DistanceY", 2, 2, 3, 2, Q("37.37621 mm")))
sketch10.addConstraint(Sketcher.Constraint("DistanceX", -1, 1, 0, 2, Q("45.924017 mm")))
sketch10.setExpression("Constraints[19]", "Params.sketch10_radius")
sketch10.setExpression("Constraints[20]", "Params.sketch10_radius2")
pad10 = body.newObject("PartDesign::Pad", "Pad009")
pad10.Profile = sketch10
pad10.setExpression("Length", "Params.pad10_length")

sketch11 = body.newObject("Sketcher::SketchObject", "Sketch010")
sketch11.AttachmentSupport = (doc.getObject("XY_Plane"), [""])
sketch11.MapMode = "FlatFace"
sketch11.AttachmentOffset = App.Placement(App.Vector(0, 0, -2.8), App.Rotation())
sketch11.addGeometry(Part.LineSegment(App.Vector(46.65, -11.627553, 0), App.Vector(46.492328, -11.504511, 0)), False)
sketch11.addGeometry(Part.ArcOfCircle(Part.Circle(App.Vector(31.75, 0, 0), App.Vector(0, 0, 1), 18.7), math.radians(-37.967506), math.radians(37.967506)), False)
sketch11.addGeometry(Part.LineSegment(App.Vector(46.492328, 11.504511, 0), App.Vector(46.65, 11.627553, 0)), False)
sketch11.addGeometry(Part.ArcOfCircle(Part.Circle(App.Vector(31.75, 0, 0), App.Vector(0, 0, 1), 18.9), math.radians(-37.967506), math.radians(37.967506)), False)
sketch11.addGeometry(Part.LineSegment(App.Vector(-31.75, 18.9, 0), App.Vector(-31.75, 18.7, 0)), False)
sketch11.addGeometry(Part.ArcOfCircle(Part.Circle(App.Vector(-31.75, 0, 0), App.Vector(0, 0, 1), 18.7), math.radians(90), math.radians(270)), False)
sketch11.addGeometry(Part.LineSegment(App.Vector(-31.75, -18.7, 0), App.Vector(-31.75, -18.9, 0)), False)
sketch11.addGeometry(Part.ArcOfCircle(Part.Circle(App.Vector(-31.75, 0, 0), App.Vector(0, 0, 1), 18.9), math.radians(90), math.radians(270)), False)
sketch11.addConstraint(Sketcher.Constraint("Coincident", 0, 2, 1, 1))
sketch11.addConstraint(Sketcher.Constraint("Coincident", 1, 2, 2, 1))
sketch11.addConstraint(Sketcher.Constraint("Coincident", 2, 2, 3, 2))
sketch11.addConstraint(Sketcher.Constraint("Coincident", 3, 1, 0, 1))
sketch11.addConstraint(Sketcher.Constraint("Coincident", 4, 2, 5, 1))
sketch11.addConstraint(Sketcher.Constraint("Coincident", 5, 2, 6, 1))
sketch11.addConstraint(Sketcher.Constraint("Coincident", 6, 2, 7, 2))
sketch11.addConstraint(Sketcher.Constraint("Coincident", 7, 1, 4, 1))
sketch11.addConstraint(Sketcher.Constraint("Vertical", 4))
sketch11.addConstraint(Sketcher.Constraint("Vertical", 6))
sketch11.addConstraint(Sketcher.Constraint("Coincident", 3, 3, 1, 3))
sketch11.addConstraint(Sketcher.Constraint("Coincident", 7, 3, 5, 3))
sketch11.addConstraint(Sketcher.Constraint("Equal", 1, 5))
sketch11.addConstraint(Sketcher.Constraint("Equal", 3, 7))
sketch11.addConstraint(Sketcher.Constraint("Symmetric", 1, 3, 5, 3, -1, 1))
sketch11.addConstraint(Sketcher.Constraint("Symmetric", 0, 2, 1, 2, -1))
sketch11.addConstraint(Sketcher.Constraint("Vertical", 2, 2, 3, 1))
sketch11.addConstraint(Sketcher.Constraint("Vertical", 7, 3, 4, 2))
sketch11.addConstraint(Sketcher.Constraint("Vertical", 4, 2, 5, 2))
sketch11.addConstraint(Sketcher.Constraint("Radius", 1, Q("18.7 mm")))
sketch11.addConstraint(Sketcher.Constraint("Radius", 3, Q("18.9 mm")))
sketch11.addConstraint(Sketcher.Constraint("DistanceX", 5, 3, 3, 3, Q("63.5 mm")))
sketch11.addConstraint(Sketcher.Constraint("DistanceX", 1, 3, 2, 2, Q("14.9 mm")))
sketch11.addConstraint(Sketcher.Constraint("DistanceX", -1, 1, 0, 2, Q("46.492328 mm")))
sketch11.setExpression("Constraints[19]", "Params.sketch11_radius")
sketch11.setExpression("Constraints[20]", "Params.sketch11_radius2")
pad11 = body.newObject("PartDesign::Pad", "Pad010")
pad11.Profile = sketch11
pad11.setExpression("Length", "Params.pad11_length")

doc.recompute()
